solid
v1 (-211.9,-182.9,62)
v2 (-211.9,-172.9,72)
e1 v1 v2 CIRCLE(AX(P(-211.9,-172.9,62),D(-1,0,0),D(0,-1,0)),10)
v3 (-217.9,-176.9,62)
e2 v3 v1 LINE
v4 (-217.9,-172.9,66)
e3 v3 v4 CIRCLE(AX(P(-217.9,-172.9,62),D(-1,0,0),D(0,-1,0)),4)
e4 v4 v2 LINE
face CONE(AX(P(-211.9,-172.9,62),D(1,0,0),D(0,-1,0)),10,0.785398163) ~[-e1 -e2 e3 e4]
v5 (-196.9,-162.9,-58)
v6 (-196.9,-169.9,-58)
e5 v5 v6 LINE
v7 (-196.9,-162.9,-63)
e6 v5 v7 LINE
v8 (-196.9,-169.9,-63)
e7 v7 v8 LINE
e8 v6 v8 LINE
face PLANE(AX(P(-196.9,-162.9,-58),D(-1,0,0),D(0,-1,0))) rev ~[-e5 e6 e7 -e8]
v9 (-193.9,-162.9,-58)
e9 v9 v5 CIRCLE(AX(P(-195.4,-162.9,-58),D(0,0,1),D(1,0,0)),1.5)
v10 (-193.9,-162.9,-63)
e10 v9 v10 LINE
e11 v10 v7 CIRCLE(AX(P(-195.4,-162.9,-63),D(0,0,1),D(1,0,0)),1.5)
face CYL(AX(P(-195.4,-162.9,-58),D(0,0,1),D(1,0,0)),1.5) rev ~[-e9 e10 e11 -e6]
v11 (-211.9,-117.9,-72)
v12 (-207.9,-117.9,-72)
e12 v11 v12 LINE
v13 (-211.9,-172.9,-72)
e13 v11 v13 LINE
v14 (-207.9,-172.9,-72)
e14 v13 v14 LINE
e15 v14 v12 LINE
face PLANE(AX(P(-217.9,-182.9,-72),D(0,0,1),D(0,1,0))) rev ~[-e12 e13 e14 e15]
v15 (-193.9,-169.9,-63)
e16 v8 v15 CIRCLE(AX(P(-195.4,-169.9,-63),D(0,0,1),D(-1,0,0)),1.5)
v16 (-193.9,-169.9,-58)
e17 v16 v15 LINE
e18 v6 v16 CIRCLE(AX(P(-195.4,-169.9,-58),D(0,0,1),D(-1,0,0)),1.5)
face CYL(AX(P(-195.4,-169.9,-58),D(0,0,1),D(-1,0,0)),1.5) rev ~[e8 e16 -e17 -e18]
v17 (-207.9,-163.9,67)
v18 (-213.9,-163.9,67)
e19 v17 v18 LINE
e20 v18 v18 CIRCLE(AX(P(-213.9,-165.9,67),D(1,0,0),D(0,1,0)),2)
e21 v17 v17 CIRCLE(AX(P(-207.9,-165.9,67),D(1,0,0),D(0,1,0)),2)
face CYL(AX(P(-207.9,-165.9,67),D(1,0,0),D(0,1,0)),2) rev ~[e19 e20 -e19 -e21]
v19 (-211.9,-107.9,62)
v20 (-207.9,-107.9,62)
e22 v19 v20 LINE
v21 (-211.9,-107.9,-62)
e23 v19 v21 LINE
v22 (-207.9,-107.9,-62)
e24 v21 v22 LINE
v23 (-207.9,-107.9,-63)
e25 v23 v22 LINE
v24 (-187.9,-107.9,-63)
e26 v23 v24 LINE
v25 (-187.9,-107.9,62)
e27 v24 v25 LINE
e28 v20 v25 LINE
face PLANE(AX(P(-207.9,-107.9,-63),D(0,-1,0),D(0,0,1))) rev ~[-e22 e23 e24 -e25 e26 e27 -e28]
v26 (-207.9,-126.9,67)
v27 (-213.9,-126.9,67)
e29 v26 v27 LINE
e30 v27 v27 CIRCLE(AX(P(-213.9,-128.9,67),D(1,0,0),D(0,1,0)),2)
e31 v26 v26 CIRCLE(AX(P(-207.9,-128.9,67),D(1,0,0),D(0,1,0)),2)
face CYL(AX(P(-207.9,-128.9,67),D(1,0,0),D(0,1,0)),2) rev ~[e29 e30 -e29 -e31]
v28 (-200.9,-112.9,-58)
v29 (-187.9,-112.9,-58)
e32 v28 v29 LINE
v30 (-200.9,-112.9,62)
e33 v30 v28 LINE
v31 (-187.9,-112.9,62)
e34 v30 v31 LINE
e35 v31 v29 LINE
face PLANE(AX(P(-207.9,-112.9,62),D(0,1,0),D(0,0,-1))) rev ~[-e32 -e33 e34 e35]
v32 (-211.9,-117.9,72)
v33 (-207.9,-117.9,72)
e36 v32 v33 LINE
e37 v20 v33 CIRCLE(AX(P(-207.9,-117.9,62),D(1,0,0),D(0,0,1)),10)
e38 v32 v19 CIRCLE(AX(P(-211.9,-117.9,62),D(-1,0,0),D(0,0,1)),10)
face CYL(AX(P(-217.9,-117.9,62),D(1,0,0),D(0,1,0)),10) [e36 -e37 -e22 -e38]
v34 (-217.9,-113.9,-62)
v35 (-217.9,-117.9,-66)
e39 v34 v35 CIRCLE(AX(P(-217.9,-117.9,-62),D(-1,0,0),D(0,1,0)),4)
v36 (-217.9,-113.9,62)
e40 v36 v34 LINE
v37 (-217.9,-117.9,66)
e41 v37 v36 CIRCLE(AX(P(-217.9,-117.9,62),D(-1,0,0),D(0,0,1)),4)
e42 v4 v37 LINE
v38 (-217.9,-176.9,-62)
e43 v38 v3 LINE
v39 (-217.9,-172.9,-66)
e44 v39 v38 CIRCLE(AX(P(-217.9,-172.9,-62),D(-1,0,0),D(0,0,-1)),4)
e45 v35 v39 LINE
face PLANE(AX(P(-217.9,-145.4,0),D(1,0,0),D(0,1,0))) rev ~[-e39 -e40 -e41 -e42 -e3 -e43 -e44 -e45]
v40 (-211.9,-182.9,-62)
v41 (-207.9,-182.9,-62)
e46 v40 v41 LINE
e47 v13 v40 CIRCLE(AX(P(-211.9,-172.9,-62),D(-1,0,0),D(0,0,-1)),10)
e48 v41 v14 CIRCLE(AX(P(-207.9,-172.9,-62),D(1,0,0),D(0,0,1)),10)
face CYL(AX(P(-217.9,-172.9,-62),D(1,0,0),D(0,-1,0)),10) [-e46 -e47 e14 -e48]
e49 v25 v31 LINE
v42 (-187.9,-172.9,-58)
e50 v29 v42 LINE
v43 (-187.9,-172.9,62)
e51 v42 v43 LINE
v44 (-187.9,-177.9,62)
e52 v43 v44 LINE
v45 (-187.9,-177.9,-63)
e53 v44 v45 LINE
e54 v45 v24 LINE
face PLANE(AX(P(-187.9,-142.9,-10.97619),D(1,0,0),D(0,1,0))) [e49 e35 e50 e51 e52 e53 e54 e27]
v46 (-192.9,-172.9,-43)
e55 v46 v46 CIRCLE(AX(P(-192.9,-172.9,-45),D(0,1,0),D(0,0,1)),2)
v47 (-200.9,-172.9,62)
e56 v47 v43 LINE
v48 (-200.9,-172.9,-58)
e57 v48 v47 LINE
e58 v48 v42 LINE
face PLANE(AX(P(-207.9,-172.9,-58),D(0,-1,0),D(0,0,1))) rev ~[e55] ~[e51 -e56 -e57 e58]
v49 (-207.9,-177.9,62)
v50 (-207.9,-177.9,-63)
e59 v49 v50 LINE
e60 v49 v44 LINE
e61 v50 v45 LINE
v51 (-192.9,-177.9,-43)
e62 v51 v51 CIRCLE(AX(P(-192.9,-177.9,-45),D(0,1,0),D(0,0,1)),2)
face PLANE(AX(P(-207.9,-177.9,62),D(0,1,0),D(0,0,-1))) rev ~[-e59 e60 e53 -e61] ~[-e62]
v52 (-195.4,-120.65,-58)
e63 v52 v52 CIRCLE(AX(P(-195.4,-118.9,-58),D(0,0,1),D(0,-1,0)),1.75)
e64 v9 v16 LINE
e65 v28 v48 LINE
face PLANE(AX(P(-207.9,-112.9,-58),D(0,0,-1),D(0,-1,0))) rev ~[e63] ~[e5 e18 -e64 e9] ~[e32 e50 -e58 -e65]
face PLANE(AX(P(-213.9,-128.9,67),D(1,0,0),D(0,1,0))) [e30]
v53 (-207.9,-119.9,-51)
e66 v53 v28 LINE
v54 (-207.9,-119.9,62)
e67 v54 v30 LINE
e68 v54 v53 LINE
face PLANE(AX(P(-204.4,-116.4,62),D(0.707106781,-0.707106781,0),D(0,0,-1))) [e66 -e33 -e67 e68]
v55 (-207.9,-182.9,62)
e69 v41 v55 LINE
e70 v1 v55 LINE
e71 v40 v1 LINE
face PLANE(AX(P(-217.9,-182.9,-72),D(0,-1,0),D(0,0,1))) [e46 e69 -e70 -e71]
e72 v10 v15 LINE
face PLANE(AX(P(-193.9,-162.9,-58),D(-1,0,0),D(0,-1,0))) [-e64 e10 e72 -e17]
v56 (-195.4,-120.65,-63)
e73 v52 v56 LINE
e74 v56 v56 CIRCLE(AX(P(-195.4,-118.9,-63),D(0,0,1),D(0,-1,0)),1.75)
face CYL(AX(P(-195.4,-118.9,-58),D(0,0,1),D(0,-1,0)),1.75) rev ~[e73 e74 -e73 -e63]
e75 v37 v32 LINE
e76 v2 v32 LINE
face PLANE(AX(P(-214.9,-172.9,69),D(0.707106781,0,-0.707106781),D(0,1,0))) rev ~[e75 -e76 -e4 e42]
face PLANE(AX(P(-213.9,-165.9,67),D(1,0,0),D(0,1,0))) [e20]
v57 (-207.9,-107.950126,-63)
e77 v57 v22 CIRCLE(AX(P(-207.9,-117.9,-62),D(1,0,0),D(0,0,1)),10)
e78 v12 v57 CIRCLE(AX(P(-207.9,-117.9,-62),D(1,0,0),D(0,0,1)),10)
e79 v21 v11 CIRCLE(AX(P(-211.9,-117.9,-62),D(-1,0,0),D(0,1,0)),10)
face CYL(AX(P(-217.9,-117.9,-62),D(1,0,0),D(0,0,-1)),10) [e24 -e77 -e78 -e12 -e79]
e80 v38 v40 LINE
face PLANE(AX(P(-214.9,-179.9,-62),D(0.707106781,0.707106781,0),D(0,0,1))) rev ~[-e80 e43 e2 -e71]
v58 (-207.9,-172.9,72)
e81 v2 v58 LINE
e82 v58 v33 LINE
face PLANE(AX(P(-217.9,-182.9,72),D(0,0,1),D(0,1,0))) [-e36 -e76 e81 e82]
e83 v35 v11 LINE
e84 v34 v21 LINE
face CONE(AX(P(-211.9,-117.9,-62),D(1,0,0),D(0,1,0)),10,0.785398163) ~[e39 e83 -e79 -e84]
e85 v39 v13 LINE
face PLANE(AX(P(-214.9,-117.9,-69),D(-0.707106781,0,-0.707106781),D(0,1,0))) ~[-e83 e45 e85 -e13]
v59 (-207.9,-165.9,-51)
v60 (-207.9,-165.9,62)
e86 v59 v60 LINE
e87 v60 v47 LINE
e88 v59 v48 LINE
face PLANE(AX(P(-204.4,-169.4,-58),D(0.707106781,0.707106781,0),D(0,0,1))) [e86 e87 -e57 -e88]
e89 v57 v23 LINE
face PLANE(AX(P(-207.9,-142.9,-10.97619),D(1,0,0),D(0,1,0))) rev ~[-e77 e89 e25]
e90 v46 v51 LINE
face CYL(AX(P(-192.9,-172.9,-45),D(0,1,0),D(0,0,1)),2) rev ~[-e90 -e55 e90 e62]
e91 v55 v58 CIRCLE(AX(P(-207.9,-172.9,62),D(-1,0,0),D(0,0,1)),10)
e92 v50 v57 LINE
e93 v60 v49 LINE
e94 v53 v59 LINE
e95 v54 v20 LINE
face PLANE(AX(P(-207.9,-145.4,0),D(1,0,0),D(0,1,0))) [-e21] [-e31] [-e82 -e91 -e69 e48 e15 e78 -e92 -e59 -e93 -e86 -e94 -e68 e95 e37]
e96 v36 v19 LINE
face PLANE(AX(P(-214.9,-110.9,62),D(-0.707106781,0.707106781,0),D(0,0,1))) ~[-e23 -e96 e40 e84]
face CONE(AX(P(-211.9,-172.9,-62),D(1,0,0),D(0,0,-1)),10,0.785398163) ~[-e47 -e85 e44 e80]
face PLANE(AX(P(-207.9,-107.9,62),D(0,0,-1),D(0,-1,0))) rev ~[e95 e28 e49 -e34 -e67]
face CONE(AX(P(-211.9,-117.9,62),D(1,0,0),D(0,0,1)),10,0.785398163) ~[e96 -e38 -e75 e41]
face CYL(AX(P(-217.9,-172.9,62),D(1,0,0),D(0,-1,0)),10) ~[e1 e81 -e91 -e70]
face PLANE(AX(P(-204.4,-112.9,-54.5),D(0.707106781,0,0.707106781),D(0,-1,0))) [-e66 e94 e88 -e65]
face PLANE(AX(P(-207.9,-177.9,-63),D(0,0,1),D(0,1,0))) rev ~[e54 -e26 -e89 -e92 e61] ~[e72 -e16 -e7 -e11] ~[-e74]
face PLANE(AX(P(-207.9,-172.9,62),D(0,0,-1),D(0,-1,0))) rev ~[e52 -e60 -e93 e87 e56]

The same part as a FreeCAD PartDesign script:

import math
import FreeCAD as App
import Part
import Sketcher


def edges_at(feature, points):
    """Names of the edges that pass closest to the given points."""
    edges = feature.Shape.Edges
    near = lambda p: min(range(len(edges)), key=lambda i: edges[i].distToShape(Part.Vertex(*p))[0])
    return sorted({f"Edge{near(p) + 1}" for p in points})


def add_polygon(sketch, points):
    """Adds a closed chain of lines whose ends are joined by coincident constraints."""
    first, n = sketch.GeometryCount, len(points)
    for a, b in zip(points, points[1:] + points[:1]):
        sketch.addGeometry(Part.LineSegment(App.Vector(*a, 0), App.Vector(*b, 0)), False)
    for i in range(n):
        sketch.addConstraint(Sketcher.Constraint("Coincident", first + i, 2, first + (i + 1) % n, 1))

doc = App.newDocument("Part")
body = doc.addObject("PartDesign::Body", "Body")

# Sketch on YZ plane
sketch1 = body.newObject("Sketcher::SketchObject", "Sketch")
sketch1.AttachmentSupport = (doc.getObject("YZ_Plane"), [""])
sketch1.MapMode = "FlatFace"
add_polygon(sketch1, [(-32, 72), (-32, -72), (43, -72), (43, 72)])  # lines 0-3
sketch1.addConstraint(Sketcher.Constraint("Vertical", 0))
sketch1.addConstraint(Sketcher.Constraint("Horizontal", 1))
sketch1.addConstraint(Sketcher.Constraint("Vertical", 2))
sketch1.addConstraint(Sketcher.Constraint("Horizontal", 3))
sketch1.addConstraint(Sketcher.Constraint("DistanceX", 1, 1, 1, 2, 75.0))
sketch1.addConstraint(Sketcher.Constraint("DistanceY", 0, 2, 0, 1, 144.0))
sketch1.addConstraint(Sketcher.Constraint("DistanceX", 0, 2, -1, 1, 32.0))
sketch1.addConstraint(Sketcher.Constraint("DistanceY", 0, 2, -1, 1, 72.0))
pad1 = body.newObject("PartDesign::Pad", "Pad")
pad1.Profile = sketch1
pad1.Length = 10
doc.recompute()

fillet = body.newObject("PartDesign::Fillet", "Fillet")
fillet.Base = (pad1, edges_at(pad1, [
    (5, 43, -72),
    (5, -32, -72),
    (5, -32, 72),
    (5, 43, 72),
]))
fillet.Radius = 10
doc.recompute()

chamfer = body.newObject("PartDesign::Chamfer", "Chamfer")
chamfer.Base = (fillet, edges_at(fillet, [
    (0, 5.5, 72),
    (0, -32, 0),
    (0, 43, 0),
    (0, 5.5, -72),
]))
chamfer.Size = 6

# Sketch on YZ plane
sketch2 = body.newObject("Sketcher::SketchObject", "Sketch001")
sketch2.AttachmentSupport = (doc.getObject("YZ_Plane"), [""])
sketch2.MapMode = "FlatFace"
sketch2.AttachmentOffset = App.Placement(App.Vector(0, 0, 10), App.Rotation())
sketch2.addGeometry(Part.Circle(App.Vector(-15, 67, 0), App.Vector(0, 0, 1), 2), False)
sketch2.addGeometry(Part.Circle(App.Vector(22, 67, 0), App.Vector(0, 0, 1), 2), False)
sketch2.addConstraint(Sketcher.Constraint("Equal", 0, 1))
sketch2.addConstraint(Sketcher.Constraint("Horizontal", 0, 3, 1, 3))
sketch2.addConstraint(Sketcher.Constraint("Diameter", 0, 4.0))
sketch2.addConstraint(Sketcher.Constraint("DistanceX", 0, 3, -1, 1, 15.0))
sketch2.addConstraint(Sketcher.Constraint("DistanceY", -1, 1, 0, 3, 67.0))
sketch2.addConstraint(Sketcher.Constraint("DistanceX", -1, 1, 1, 3, 22.0))
pocket1 = body.newObject("PartDesign::Pocket", "Pocket")
pocket1.Profile = sketch2
pocket1.Length = 6

# Sketch on YZ plane
sketch3 = body.newObject("Sketcher::SketchObject", "Sketch002")
sketch3.AttachmentSupport = (doc.getObject("YZ_Plane"), [""])
sketch3.MapMode = "FlatFace"
sketch3.AttachmentOffset = App.Placement(App.Vector(0, 0, 10), App.Rotation())
add_polygon(sketch3, [(-27, 62), (-27, -63), (43, -63), (43, 62), (38, 62), (38, -58), (-22, -58), (-22, 62)])  # lines 0-7
sketch3.addConstraint(Sketcher.Constraint("Vertical", 0))
sketch3.addConstraint(Sketcher.Constraint("Horizontal", 1))
sketch3.addConstraint(Sketcher.Constraint("Vertical", 2))
sketch3.addConstraint(Sketcher.Constraint("Horizontal", 3))
sketch3.addConstraint(Sketcher.Constraint("Vertical", 4))
sketch3.addConstraint(Sketcher.Constraint("Horizontal", 5))
sketch3.addConstraint(Sketcher.Constraint("Vertical", 6))
sketch3.addConstraint(Sketcher.Constraint("Horizontal", 7))
sketch3.addConstraint(Sketcher.Constraint("Horizontal", 3, 2, 6, 2))
sketch3.addConstraint(Sketcher.Constraint("Equal", 3, 7))
sketch3.addConstraint(Sketcher.Constraint("DistanceX", 1, 1, 1, 2, 70.0))
sketch3.addConstraint(Sketcher.Constraint("DistanceX", 3, 2, 3, 1, 5.0))
sketch3.addConstraint(Sketcher.Constraint("DistanceY", 0, 2, 0, 1, 125.0))
sketch3.addConstraint(Sketcher.Constraint("DistanceY", 4, 2, 4, 1, 120.0))
sketch3.addConstraint(Sketcher.Constraint("DistanceX", 0, 2, -1, 1, 27.0))
sketch3.addConstraint(Sketcher.Constraint("DistanceY", 0, 2, -1, 1, 63.0))
pad2 = body.newObject("PartDesign::Pad", "Pad001")
pad2.Profile = sketch3
pad2.Length = 20

# Sketch on XY plane
sketch4 = body.newObject("Sketcher::SketchObject", "Sketch003")
sketch4.AttachmentSupport = (doc.getObject("XY_Plane"), [""])
sketch4.MapMode = "FlatFace"
sketch4.AttachmentOffset = App.Placement(App.Vector(0, 0, -58), App.Rotation())
sketch4.addGeometry(Part.Circle(App.Vector(22.5, 32, 0), App.Vector(0, 0, 1), 1.75), False)
sketch4.addGeometry(Part.ArcOfCircle(Part.Circle(App.Vector(22.5, -12, 0), App.Vector(0, 0, 1), 1.5), math.radians(0), math.radians(180)), False)
sketch4.addGeometry(Part.LineSegment(App.Vector(21, -12, 0), App.Vector(21, -19, 0)), False)
sketch4.addGeometry(Part.ArcOfCircle(Part.Circle(App.Vector(22.5, -19, 0), App.Vector(0, 0, 1), 1.5), math.radians(180), math.radians(360)), False)
sketch4.addGeometry(Part.LineSegment(App.Vector(24, -19, 0), App.Vector(24, -12, 0)), False)
sketch4.addConstraint(Sketcher.Constraint("Tangent", 1, 2, 2, 1))
sketch4.addConstraint(Sketcher.Constraint("Tangent", 2, 2, 3, 1))
sketch4.addConstraint(Sketcher.Constraint("Tangent", 3, 2, 4, 1))
sketch4.addConstraint(Sketcher.Constraint("Tangent", 4, 2, 1, 1))
sketch4.addConstraint(Sketcher.Constraint("Vertical", 2))
sketch4.addConstraint(Sketcher.Constraint("Vertical", 4))
sketch4.addConstraint(Sketcher.Constraint("Vertical", 0, 3, 1, 3))
sketch4.addConstraint(Sketcher.Constraint("Diameter", 0, 3.5))
sketch4.addConstraint(Sketcher.Constraint("Radius", 1, 1.5))
sketch4.addConstraint(Sketcher.Constraint("DistanceY", 2, 2, 2, 1, 7.0))
sketch4.addConstraint(Sketcher.Constraint("DistanceY", -1, 1, 0, 3, 32.0))
sketch4.addConstraint(Sketcher.Constraint("DistanceY", 1, 3, -1, 1, 12.0))
sketch4.addConstraint(Sketcher.Constraint("DistanceX", -1, 1, 1, 2, 21.0))
pocket2 = body.newObject("PartDesign::Pocket", "Pocket001")
pocket2.Profile = sketch4
pocket2.Length = 5
doc.recompute()

chamfer2 = body.newObject("PartDesign::Chamfer", "Chamfer001")
chamfer2.Base = (pocket2, edges_at(pocket2, [(10, 8, -58), (10, -22, 2), (10, 38, 2)]))
chamfer2.Size = 7

# Sketch on XZ plane
sketch5 = body.newObject("Sketcher::SketchObject", "Sketch004")
sketch5.AttachmentSupport = (doc.getObject("XZ_Plane"), [""])
sketch5.MapMode = "FlatFace"
sketch5.AttachmentOffset = App.Placement(App.Vector(0, 0, 22), App.Rotation())
sketch5.addGeometry(Part.Circle(App.Vector(25, -45, 0), App.Vector(0, 0, 1), 2), False)
sketch5.addConstraint(Sketcher.Constraint("Diameter", 0, 4.0))
sketch5.addConstraint(Sketcher.Constraint("DistanceX", -1, 1, 0, 3, 25.0))
sketch5.addConstraint(Sketcher.Constraint("DistanceY", 0, 3, -1, 1, 45.0))
pocket3 = body.newObject("PartDesign::Pocket", "Pocket002")
pocket3.Profile = sketch5
pocket3.Length = 5
pocket3.Reversed = True
body2 = doc.addObject("PartDesign::Body", "Body001")
doc.recompute()

body.Placement = App.Placement(App.Vector(-217.9, -150.9, 0), App.Rotation(App.Vector(0, 0, 1), 0))
boolean = body2.newObject("PartDesign::Boolean", "Boolean")
boolean.Type = "Fuse"
boolean.addObjects([body])

doc.recompute()
